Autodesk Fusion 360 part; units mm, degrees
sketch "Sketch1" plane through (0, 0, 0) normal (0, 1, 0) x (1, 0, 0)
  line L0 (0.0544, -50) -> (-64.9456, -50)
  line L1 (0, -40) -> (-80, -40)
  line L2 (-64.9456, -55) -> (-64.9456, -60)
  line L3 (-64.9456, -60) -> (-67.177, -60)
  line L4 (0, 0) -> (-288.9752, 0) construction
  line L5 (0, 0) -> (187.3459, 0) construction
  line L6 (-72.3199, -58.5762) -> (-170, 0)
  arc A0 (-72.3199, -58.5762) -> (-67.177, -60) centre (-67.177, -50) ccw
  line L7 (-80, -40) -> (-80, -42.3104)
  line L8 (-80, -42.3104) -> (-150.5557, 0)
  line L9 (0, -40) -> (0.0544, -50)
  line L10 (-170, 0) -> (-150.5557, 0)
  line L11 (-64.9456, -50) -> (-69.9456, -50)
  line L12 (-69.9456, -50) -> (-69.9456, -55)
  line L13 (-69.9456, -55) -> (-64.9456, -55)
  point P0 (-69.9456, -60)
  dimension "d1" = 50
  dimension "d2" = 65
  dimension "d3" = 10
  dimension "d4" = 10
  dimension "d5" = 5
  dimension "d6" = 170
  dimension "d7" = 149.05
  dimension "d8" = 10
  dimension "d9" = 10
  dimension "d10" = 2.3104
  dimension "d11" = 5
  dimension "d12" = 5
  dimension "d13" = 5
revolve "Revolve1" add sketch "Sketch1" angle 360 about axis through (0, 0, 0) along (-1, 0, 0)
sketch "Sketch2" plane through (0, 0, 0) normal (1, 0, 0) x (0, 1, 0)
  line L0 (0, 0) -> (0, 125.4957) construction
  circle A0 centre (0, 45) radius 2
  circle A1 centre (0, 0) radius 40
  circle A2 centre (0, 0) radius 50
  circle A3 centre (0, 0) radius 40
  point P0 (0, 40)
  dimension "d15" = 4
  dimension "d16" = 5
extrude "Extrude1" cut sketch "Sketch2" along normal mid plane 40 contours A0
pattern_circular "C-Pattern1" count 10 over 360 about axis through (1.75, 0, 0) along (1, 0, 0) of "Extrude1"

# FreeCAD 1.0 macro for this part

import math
import FreeCAD as App
import Part
import Sketcher
from FreeCAD import Vector
Q = App.Units.Quantity

doc = App.newDocument("Part")
body = doc.addObject("PartDesign::Body", "Body")

# Sketch on XZ plane
sketch1 = body.newObject("Sketcher::SketchObject", "Sketch")
sketch1.AttachmentSupport = (doc.getObject("XZ_Plane"), [""])
sketch1.MapMode = "FlatFace"
sketch1.addGeometry([
    Part.LineSegment(Vector(-69.9, 50, 0), Vector(0.1, 50, 0)),  # 0
    Part.LineSegment(Vector(0.1, 50, 0), Vector(0, 40, 0)),  # 1
    Part.LineSegment(Vector(0, 40, 0), Vector(-80, 40, 0)),  # 2
    Part.LineSegment(Vector(-80, 40, 0), Vector(-80, 42.3, 0)),  # 3
    Part.LineSegment(Vector(-80, 42.3, 0), Vector(-150.6, 0, 0)),  # 4
    Part.LineSegment(Vector(-150.6, 0, 0), Vector(-170, 0, 0)),  # 5
    Part.LineSegment(Vector(-170, 0, 0), Vector(-72.3, 58.6, 0)),  # 6
    Part.ArcOfCircle(Part.Circle(Vector(-67.2, 50, 0), Vector(0, 0, 1), 10), math.radians(90), math.radians(121)),  # 7
    Part.LineSegment(Vector(-67.2, 60, 0), Vector(-64.9, 60, 0)),  # 8
    Part.LineSegment(Vector(-64.9, 60, 0), Vector(-64.9, 55, 0)),  # 9
    Part.LineSegment(Vector(-64.9, 55, 0), Vector(-69.9, 55, 0)),  # 10
    Part.LineSegment(Vector(-69.9, 55, 0), Vector(-69.9, 50, 0)),  # 11
], False)
sketch1.addConstraint([
    Sketcher.Constraint("Coincident", 0, 2, 1, 1),
    Sketcher.Constraint("Coincident", 1, 2, 2, 1),
    Sketcher.Constraint("Coincident", 2, 2, 3, 1),
    Sketcher.Constraint("Coincident", 3, 2, 4, 1),
    Sketcher.Constraint("Coincident", 4, 2, 5, 1),
    Sketcher.Constraint("Coincident", 5, 2, 6, 1),
    Sketcher.Constraint("Tangent", 6, 2, 7, 2),
    Sketcher.Constraint("Tangent", 7, 1, 8, 1),
    Sketcher.Constraint("Coincident", 8, 2, 9, 1),
    Sketcher.Constraint("Coincident", 9, 2, 10, 1),
    Sketcher.Constraint("Coincident", 10, 2, 11, 1),
    Sketcher.Constraint("Coincident", 11, 2, 0, 1),
    Sketcher.Constraint("Horizontal", 0),
    Sketcher.Constraint("Horizontal", 2),
    Sketcher.Constraint("Vertical", 3),
    Sketcher.Constraint("Horizontal", 5),
    Sketcher.Constraint("Horizontal", 8),
    Sketcher.Constraint("Vertical", 9),
    Sketcher.Constraint("Horizontal", 10),
    Sketcher.Constraint("Vertical", 11),
    Sketcher.Constraint("PointOnObject", 1, 2, -2),
    Sketcher.Constraint("PointOnObject", 4, 2, -1),
    Sketcher.Constraint("Parallel", 4, 6),
    Sketcher.Constraint("Horizontal", 7, 3, 0, 2),
    Sketcher.Constraint("Equal", 10, 9),
    Sketcher.Constraint("Equal", 9, 11),
    Sketcher.Constraint("Radius", 7, Q("10 mm")),
    Sketcher.Constraint("DistanceY", -1, 1, 7, 3, Q("50 mm")),
    Sketcher.Constraint("DistanceX", 5, 2, -1, 1, Q("170 mm")),
    Sketcher.Constraint("DistanceY", 1, 2, 0, 2, Q("10 mm")),
    Sketcher.Constraint("Angle", 4, Q("-149.05 deg")),
    Sketcher.Constraint("DistanceX", 0, 1, 0, 2, Q("70 mm")),
    Sketcher.Constraint("DistanceX", 2, 2, 2, 1, Q("80 mm")),
    Sketcher.Constraint("DistanceY", 3, 1, 3, 2, Q("2.3104 mm")),
    Sketcher.Constraint("DistanceX", 4, 2, 0, 2, Q("150.61 mm")),
])
revolution = body.newObject("PartDesign::Revolution", "Revolution")
revolution.Profile = sketch1
revolution.ReferenceAxis = (sketch1, ["H_Axis"])
revolution.Angle = 360

# Sketch on YZ plane
sketch2 = body.newObject("Sketcher::SketchObject", "Sketch001")
sketch2.AttachmentSupport = (doc.getObject("YZ_Plane"), [""])
sketch2.MapMode = "FlatFace"
sketch2.addGeometry(Part.Circle(Vector(0, 45, 0), Vector(0, 0, 1), 2), False)
sketch2.addConstraint([
    Sketcher.Constraint("PointOnObject", 0, 3, -2),
    Sketcher.Constraint("Diameter", 0, Q("4 mm")),
    Sketcher.Constraint("DistanceY", -1, 1, 0, 3, Q("45 mm")),
])
pocket1 = body.newObject("PartDesign::Pocket", "Pocket")
pocket1.Profile = sketch2
pocket1.Length = 40
pocket1.Midplane = True
doc.recompute()

polarpattern = body.newObject("PartDesign::PolarPattern", "PolarPattern")
polarpattern.Originals = [pocket1]
polarpattern.Axis = (doc.getObject("X_Axis"), [""])
polarpattern.Angle = 360
polarpattern.Occurrences = 10
body.Tip = polarpattern

doc.recompute()
